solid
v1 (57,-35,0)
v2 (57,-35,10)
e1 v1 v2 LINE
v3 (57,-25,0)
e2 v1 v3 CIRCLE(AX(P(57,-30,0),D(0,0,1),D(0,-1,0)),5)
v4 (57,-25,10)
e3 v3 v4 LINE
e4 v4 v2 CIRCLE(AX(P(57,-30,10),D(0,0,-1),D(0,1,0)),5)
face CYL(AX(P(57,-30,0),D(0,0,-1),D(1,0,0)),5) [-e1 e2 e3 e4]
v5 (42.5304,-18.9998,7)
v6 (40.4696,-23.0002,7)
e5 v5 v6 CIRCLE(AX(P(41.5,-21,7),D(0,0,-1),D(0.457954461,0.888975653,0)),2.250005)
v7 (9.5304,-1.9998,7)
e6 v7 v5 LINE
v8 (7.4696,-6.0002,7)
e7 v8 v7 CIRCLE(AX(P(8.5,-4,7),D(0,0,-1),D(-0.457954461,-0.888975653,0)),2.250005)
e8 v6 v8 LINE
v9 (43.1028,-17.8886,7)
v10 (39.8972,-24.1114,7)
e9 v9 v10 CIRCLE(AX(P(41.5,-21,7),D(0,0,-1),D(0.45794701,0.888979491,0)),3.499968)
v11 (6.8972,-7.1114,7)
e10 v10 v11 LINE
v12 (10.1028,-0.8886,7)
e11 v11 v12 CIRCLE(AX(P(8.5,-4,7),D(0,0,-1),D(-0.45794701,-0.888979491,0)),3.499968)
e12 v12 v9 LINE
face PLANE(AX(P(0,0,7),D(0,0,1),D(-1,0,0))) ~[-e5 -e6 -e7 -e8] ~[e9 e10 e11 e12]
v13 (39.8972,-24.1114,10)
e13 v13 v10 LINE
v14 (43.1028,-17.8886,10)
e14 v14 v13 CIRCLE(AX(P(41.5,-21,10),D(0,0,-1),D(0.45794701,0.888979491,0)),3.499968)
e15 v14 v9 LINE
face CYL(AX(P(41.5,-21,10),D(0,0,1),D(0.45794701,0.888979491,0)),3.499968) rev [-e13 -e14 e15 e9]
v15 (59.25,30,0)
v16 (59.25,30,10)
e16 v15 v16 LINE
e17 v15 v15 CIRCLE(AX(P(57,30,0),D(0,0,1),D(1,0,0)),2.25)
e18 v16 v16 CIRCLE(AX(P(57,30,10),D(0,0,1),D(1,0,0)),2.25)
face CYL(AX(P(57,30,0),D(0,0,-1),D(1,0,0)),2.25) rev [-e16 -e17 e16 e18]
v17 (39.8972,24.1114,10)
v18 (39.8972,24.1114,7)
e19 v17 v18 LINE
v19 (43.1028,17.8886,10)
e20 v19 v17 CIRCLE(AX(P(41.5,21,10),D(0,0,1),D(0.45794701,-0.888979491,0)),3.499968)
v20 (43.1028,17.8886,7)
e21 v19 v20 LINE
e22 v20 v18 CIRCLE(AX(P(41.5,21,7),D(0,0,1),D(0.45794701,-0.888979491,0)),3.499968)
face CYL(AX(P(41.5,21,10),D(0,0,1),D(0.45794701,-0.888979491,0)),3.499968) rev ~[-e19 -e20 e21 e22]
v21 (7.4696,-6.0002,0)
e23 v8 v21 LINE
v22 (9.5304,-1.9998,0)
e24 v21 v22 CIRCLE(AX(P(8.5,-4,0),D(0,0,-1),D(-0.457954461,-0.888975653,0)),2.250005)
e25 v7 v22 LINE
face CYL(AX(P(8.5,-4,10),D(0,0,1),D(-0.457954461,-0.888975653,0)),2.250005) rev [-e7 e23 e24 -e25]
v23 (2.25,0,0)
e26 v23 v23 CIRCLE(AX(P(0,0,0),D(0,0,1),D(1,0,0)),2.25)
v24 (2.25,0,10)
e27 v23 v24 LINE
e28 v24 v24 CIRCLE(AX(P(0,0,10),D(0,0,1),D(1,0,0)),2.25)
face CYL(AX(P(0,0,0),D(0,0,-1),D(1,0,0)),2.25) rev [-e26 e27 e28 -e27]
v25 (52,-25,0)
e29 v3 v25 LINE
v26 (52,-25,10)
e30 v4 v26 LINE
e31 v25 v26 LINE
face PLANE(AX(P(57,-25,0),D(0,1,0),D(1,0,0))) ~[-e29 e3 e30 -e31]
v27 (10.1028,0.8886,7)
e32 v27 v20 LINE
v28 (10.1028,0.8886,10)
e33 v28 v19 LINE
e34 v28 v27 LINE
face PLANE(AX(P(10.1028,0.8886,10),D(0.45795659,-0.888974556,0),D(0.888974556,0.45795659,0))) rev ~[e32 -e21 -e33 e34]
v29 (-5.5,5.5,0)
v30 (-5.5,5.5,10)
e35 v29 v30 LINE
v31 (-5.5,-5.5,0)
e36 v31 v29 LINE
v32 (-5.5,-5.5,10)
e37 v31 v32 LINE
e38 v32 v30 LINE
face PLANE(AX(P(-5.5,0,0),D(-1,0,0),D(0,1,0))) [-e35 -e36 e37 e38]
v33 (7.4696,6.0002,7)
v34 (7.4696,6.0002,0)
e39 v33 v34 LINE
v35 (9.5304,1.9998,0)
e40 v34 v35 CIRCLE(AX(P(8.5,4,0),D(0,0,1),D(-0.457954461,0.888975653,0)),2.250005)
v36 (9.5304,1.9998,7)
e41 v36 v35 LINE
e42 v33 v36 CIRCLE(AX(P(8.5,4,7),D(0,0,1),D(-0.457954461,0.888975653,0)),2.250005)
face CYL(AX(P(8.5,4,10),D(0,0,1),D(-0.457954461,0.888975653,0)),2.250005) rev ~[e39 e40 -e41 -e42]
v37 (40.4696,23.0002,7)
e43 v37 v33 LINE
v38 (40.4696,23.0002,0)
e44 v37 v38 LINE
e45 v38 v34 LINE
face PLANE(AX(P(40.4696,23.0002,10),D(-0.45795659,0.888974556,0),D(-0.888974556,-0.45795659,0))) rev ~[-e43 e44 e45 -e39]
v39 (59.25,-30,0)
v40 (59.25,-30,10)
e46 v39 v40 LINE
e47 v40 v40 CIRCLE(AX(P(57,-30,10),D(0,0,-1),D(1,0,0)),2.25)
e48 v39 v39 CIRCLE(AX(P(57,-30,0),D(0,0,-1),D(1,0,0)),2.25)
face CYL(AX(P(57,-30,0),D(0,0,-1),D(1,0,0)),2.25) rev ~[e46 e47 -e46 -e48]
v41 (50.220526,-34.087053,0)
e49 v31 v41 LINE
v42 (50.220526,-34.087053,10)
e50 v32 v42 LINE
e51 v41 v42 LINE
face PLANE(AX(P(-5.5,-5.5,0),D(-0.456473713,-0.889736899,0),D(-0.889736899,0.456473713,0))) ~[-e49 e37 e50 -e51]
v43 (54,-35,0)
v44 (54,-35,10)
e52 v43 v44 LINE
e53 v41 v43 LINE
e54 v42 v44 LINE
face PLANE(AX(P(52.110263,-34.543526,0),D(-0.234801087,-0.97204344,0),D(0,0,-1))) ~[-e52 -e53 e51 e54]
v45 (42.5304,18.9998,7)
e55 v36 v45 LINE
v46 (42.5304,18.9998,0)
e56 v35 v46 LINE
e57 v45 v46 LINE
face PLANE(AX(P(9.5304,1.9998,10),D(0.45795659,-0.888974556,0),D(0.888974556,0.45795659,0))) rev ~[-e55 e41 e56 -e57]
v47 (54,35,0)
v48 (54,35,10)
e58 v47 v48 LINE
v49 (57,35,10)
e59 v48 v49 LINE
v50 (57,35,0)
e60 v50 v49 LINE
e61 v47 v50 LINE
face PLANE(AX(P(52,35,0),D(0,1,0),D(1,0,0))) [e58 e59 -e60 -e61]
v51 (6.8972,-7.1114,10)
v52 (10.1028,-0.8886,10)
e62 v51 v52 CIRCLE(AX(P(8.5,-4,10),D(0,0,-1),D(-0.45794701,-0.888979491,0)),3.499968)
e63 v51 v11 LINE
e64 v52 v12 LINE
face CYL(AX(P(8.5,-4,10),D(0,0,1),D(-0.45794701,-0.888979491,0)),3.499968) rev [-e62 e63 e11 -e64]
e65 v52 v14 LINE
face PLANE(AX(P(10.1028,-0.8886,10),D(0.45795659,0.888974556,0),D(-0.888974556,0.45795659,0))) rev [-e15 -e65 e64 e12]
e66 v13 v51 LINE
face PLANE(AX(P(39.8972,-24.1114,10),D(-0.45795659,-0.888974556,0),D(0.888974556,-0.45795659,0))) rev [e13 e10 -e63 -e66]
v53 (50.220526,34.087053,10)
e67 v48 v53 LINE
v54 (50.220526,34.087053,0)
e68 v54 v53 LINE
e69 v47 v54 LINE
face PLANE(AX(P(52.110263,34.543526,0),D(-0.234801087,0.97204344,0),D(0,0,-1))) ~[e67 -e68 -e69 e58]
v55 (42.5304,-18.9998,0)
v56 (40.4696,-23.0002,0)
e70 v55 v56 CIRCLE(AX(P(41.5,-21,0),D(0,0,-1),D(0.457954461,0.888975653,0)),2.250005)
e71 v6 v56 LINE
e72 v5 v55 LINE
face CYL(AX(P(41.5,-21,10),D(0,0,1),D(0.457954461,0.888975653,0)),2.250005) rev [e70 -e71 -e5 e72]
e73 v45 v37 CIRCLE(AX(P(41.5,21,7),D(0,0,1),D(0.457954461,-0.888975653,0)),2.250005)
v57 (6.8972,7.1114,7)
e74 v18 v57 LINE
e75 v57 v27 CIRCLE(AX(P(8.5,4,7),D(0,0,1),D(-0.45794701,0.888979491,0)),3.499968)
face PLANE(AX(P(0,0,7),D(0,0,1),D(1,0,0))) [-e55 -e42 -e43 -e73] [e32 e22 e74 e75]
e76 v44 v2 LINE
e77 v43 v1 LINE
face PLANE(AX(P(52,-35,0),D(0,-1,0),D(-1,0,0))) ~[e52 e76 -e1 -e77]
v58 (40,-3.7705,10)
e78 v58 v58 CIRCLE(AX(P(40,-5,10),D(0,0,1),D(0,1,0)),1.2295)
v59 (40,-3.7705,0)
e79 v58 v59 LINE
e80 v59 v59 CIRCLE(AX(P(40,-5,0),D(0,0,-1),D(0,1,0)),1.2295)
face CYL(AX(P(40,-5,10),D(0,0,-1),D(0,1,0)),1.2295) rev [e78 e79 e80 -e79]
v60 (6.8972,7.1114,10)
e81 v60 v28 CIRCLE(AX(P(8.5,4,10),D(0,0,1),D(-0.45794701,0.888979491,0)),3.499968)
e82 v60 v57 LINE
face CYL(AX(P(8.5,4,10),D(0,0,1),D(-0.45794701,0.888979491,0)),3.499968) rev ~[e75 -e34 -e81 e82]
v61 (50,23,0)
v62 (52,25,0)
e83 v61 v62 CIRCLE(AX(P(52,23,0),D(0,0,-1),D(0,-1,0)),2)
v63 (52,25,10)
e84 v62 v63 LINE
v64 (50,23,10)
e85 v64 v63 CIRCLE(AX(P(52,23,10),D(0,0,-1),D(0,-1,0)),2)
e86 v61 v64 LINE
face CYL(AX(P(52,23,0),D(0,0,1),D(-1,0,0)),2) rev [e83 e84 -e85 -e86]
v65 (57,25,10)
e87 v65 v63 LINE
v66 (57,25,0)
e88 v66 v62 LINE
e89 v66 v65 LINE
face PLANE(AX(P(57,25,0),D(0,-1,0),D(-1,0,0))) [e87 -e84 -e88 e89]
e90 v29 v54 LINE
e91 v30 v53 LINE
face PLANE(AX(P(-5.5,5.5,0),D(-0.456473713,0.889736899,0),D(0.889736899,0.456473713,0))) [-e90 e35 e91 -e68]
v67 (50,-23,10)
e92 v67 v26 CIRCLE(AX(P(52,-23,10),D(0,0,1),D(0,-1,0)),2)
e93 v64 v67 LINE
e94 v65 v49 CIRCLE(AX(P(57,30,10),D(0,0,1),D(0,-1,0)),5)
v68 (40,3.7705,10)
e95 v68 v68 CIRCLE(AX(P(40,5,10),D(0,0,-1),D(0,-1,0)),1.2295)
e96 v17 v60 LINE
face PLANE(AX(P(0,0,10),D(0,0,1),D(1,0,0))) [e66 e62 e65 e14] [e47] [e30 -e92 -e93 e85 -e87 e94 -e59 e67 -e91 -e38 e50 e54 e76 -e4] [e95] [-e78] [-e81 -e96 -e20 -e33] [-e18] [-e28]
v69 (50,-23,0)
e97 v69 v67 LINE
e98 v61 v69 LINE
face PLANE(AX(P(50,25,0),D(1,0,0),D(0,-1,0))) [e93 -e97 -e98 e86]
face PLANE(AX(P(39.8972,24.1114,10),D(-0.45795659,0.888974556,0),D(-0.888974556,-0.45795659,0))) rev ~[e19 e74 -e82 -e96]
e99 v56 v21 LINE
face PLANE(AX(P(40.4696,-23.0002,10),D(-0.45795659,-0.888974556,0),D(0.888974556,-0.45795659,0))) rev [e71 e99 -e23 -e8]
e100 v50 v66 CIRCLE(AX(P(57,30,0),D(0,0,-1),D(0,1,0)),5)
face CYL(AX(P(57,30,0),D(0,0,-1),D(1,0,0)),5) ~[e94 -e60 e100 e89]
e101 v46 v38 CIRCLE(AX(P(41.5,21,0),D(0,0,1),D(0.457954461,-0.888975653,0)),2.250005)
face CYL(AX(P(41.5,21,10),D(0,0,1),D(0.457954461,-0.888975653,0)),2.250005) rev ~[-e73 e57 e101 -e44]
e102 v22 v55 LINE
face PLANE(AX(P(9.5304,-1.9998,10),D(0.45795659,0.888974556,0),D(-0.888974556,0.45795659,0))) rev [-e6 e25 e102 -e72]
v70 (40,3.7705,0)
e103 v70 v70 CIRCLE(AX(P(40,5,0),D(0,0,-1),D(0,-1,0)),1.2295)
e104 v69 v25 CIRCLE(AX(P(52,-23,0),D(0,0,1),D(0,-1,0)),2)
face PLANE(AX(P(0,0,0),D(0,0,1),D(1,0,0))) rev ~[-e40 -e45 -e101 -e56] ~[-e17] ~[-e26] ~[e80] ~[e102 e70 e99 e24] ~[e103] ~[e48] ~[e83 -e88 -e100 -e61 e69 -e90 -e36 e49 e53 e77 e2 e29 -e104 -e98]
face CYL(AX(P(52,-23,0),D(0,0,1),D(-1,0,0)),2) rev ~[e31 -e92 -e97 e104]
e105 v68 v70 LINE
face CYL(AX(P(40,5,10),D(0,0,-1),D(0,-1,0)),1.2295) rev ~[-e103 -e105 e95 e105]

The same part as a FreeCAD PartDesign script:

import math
import FreeCAD as App
import Part
import Sketcher
Q = App.Units.Quantity


def edges_at(feature, points):
    """Names of the edges that pass closest to the given points."""
    edges = feature.Shape.Edges
    near = lambda p: min(range(len(edges)), key=lambda i: edges[i].distToShape(Part.Vertex(*p))[0])
    return sorted({f"Edge{near(p) + 1}" for p in points})

doc = App.newDocument("Part")
body = doc.addObject("PartDesign::Body", "Body")

sketch1 = body.newObject("Sketcher::SketchObject", "Sketch")
sketch1.AttachmentSupport = (doc.getObject("XY_Plane"), [""])
sketch1.MapMode = "FlatFace"
sketch1.addGeometry(Part.ArcOfCircle(Part.Circle(App.Vector(0, 0, 0), App.Vector(0, 0, 1), 2.2), math.radians(0), math.radians(180)), False)
sketch1.addGeometry(Part.LineSegment(App.Vector(2.2, 0, 0), App.Vector(50, 0, 0)), False)
sketch1.addGeometry(Part.LineSegment(App.Vector(50, 0, 0), App.Vector(50, 25, 0)), False)
sketch1.addGeometry(Part.LineSegment(App.Vector(50, 25, 0), App.Vector(57, 25, 0)), False)
sketch1.addGeometry(Part.ArcOfCircle(Part.Circle(App.Vector(57, 30, 0), App.Vector(0, 0, 1), 5), math.radians(-90), math.radians(90)), False)
sketch1.addGeometry(Part.LineSegment(App.Vector(57, 35, 0), App.Vector(52, 35, 0)), False)
sketch1.addGeometry(Part.LineSegment(App.Vector(52, 35, 0), App.Vector(-5.5, 5.5, 0)), False)
sketch1.addGeometry(Part.LineSegment(App.Vector(-5.5, 5.5, 0), App.Vector(-5.5, 0, 0)), False)
sketch1.addGeometry(Part.LineSegment(App.Vector(-5.5, 0, 0), App.Vector(-2.2, 0, 0)), False)
sketch1.addGeometry(Part.Circle(App.Vector(57, 30, 0), App.Vector(0, 0, 1), 2.2), False)
sketch1.addConstraint(Sketcher.Constraint("Coincident", 0, 1, 1, 1))
sketch1.addConstraint(Sketcher.Constraint("Coincident", 1, 2, 2, 1))
sketch1.addConstraint(Sketcher.Constraint("Coincident", 2, 2, 3, 1))
sketch1.addConstraint(Sketcher.Constraint("Tangent", 3, 2, 4, 1))
sketch1.addConstraint(Sketcher.Constraint("Tangent", 4, 2, 5, 1))
sketch1.addConstraint(Sketcher.Constraint("Coincident", 5, 2, 6, 1))
sketch1.addConstraint(Sketcher.Constraint("Coincident", 6, 2, 7, 1))
sketch1.addConstraint(Sketcher.Constraint("Coincident", 7, 2, 8, 1))
sketch1.addConstraint(Sketcher.Constraint("Coincident", 8, 2, 0, 2))
sketch1.addConstraint(Sketcher.Constraint("Horizontal", 1))
sketch1.addConstraint(Sketcher.Constraint("Vertical", 2))
sketch1.addConstraint(Sketcher.Constraint("Horizontal", 3))
sketch1.addConstraint(Sketcher.Constraint("Horizontal", 5))
sketch1.addConstraint(Sketcher.Constraint("Vertical", 7))
sketch1.addConstraint(Sketcher.Constraint("Horizontal", 8))
sketch1.addConstraint(Sketcher.Constraint("Coincident", 0, 3, -1, 1))
sketch1.addConstraint(Sketcher.Constraint("Coincident", 9, 3, 4, 3))
sketch1.addConstraint(Sketcher.Constraint("Equal", 0, 9))
sketch1.addConstraint(Sketcher.Constraint("PointOnObject", 0, 1, -1))
sketch1.addConstraint(Sketcher.Constraint("PointOnObject", 7, 2, -1))
sketch1.addConstraint(Sketcher.Constraint("Radius", 4, Q("5 mm")))
sketch1.addConstraint(Sketcher.Constraint("Diameter", 9, Q("4.5 mm")))
sketch1.addConstraint(Sketcher.Constraint("DistanceX", 5, 2, 5, 1, Q("5 mm")))
sketch1.addConstraint(Sketcher.Constraint("DistanceY", 2, 1, 2, 2, Q("25 mm")))
sketch1.addConstraint(Sketcher.Constraint("DistanceY", 7, 2, 7, 1, Q("5.5 mm")))
sketch1.addConstraint(Sketcher.Constraint("DistanceX", 6, 2, -1, 1, Q("5.5 mm")))
sketch1.addConstraint(Sketcher.Constraint("DistanceX", 6, 2, 1, 2, Q("55.5 mm")))
sketch1.addConstraint(Sketcher.Constraint("DistanceX", 3, 1, 3, 2, Q("7 mm")))
pad1 = body.newObject("PartDesign::Pad", "Pad")
pad1.Profile = sketch1
pad1.Length = 10
doc.recompute()

mirrored = body.newObject("PartDesign::Mirrored", "Mirrored")
mirrored.TransformMode = "Transform body"
mirrored.MirrorPlane = (doc.getObject("XZ_Plane"), [""])
body.Tip = mirrored
doc.recompute()

fillet = body.newObject("PartDesign::Fillet", "Fillet")
fillet.Base = (mirrored, edges_at(mirrored, [(50, 25, 5), (50, -25, 5)]))
fillet.Radius = 2

sketch2 = body.newObject("Sketcher::SketchObject", "Sketch001")
sketch2.AttachmentSupport = (doc.getObject("XY_Plane"), [""])
sketch2.MapMode = "FlatFace"
sketch2.AttachmentOffset = App.Placement(App.Vector(0, 0, 10), App.Rotation())
sketch2.addGeometry(Part.ArcOfCircle(Part.Circle(App.Vector(41.5, 21, 0), App.Vector(0, 0, 1), 3.5), math.radians(-63), math.radians(117)), False)
sketch2.addGeometry(Part.LineSegment(App.Vector(39.9, 24.1, 0), App.Vector(6.9, 7.1, 0)), False)
sketch2.addGeometry(Part.ArcOfCircle(Part.Circle(App.Vector(8.5, 4, 0), App.Vector(0, 0, 1), 3.5), math.radians(117), math.radians(297)), False)
sketch2.addGeometry(Part.LineSegment(App.Vector(10.1, 0.9, 0), App.Vector(43.1, 17.9, 0)), False)
sketch2.addGeometry(Part.LineSegment(App.Vector(7.5, 6, 0), App.Vector(40.5, 23, 0)), False)
sketch2.addGeometry(Part.ArcOfCircle(Part.Circle(App.Vector(41.5, 21, 0), App.Vector(0, 0, 1), 2.3), math.radians(-63), math.radians(117)), False)
sketch2.addGeometry(Part.LineSegment(App.Vector(42.5, 19, 0), App.Vector(9.5, 2, 0)), False)
sketch2.addGeometry(Part.ArcOfCircle(Part.Circle(App.Vector(8.5, 4, 0), App.Vector(0, 0, 1), 2.3), math.radians(117), math.radians(297)), False)
sketch2.addConstraint(Sketcher.Constraint("Tangent", 0, 2, 1, 1))
sketch2.addConstraint(Sketcher.Constraint("Tangent", 1, 2, 2, 1))
sketch2.addConstraint(Sketcher.Constraint("Tangent", 2, 2, 3, 1))
sketch2.addConstraint(Sketcher.Constraint("Tangent", 3, 2, 0, 1))
sketch2.addConstraint(Sketcher.Constraint("Tangent", 4, 2, 5, 2))
sketch2.addConstraint(Sketcher.Constraint("Tangent", 5, 1, 6, 1))
sketch2.addConstraint(Sketcher.Constraint("Tangent", 6, 2, 7, 2))
sketch2.addConstraint(Sketcher.Constraint("Tangent", 7, 1, 4, 1))
sketch2.addConstraint(Sketcher.Constraint("Coincident", 5, 3, 0, 3))
sketch2.addConstraint(Sketcher.Constraint("Coincident", 7, 3, 2, 3))
sketch2.addConstraint(Sketcher.Constraint("Equal", 0, 2))
sketch2.addConstraint(Sketcher.Constraint("Equal", 5, 7))
sketch2.addConstraint(Sketcher.Constraint("Radius", 0, Q("3.5 mm")))
sketch2.addConstraint(Sketcher.Constraint("Radius", 5, Q("2.25 mm")))
sketch2.addConstraint(Sketcher.Constraint("DistanceY", -1, 1, 0, 3, Q("21 mm")))
sketch2.addConstraint(Sketcher.Constraint("DistanceY", -1, 1, 2, 3, Q("4 mm")))
sketch2.addConstraint(Sketcher.Constraint("DistanceX", 2, 3, 0, 3, Q("33 mm")))
sketch2.addConstraint(Sketcher.Constraint("DistanceX", -1, 1, 0, 3, Q("41.5 mm")))
pocket1 = body.newObject("PartDesign::Pocket", "Pocket")
pocket1.Profile = sketch2
pocket1.Length = 3

sketch3 = body.newObject("Sketcher::SketchObject", "Sketch002")
sketch3.AttachmentSupport = (doc.getObject("XY_Plane"), [""])
sketch3.MapMode = "FlatFace"
sketch3.AttachmentOffset = App.Placement(App.Vector(0, 0, 10), App.Rotation())
sketch3.addGeometry(Part.LineSegment(App.Vector(9.5, 2, 0), App.Vector(42.5, 19, 0)), False)
sketch3.addGeometry(Part.ArcOfCircle(Part.Circle(App.Vector(41.5, 21, 0), App.Vector(0, 0, 1), 2.3), math.radians(-63), math.radians(117)), False)
sketch3.addGeometry(Part.LineSegment(App.Vector(40.5, 23, 0), App.Vector(7.5, 6, 0)), False)
sketch3.addGeometry(Part.ArcOfCircle(Part.Circle(App.Vector(8.5, 4, 0), App.Vector(0, 0, 1), 2.3), math.radians(117), math.radians(297)), False)
sketch3.addConstraint(Sketcher.Constraint("Tangent", 0, 2, 1, 1))
sketch3.addConstraint(Sketcher.Constraint("Tangent", 1, 2, 2, 1))
sketch3.addConstraint(Sketcher.Constraint("Tangent", 2, 2, 3, 1))
sketch3.addConstraint(Sketcher.Constraint("Tangent", 3, 2, 0, 1))
sketch3.addConstraint(Sketcher.Constraint("Equal", 1, 3))
sketch3.addConstraint(Sketcher.Constraint("Radius", 1, Q("2.25 mm")))
sketch3.addConstraint(Sketcher.Constraint("DistanceY", -1, 1, 1, 3, Q("21 mm")))
sketch3.addConstraint(Sketcher.Constraint("DistanceY", -1, 1, 3, 3, Q("4 mm")))
sketch3.addConstraint(Sketcher.Constraint("DistanceX", 3, 3, 1, 3, Q("33 mm")))
sketch3.addConstraint(Sketcher.Constraint("DistanceX", -1, 1, 1, 3, Q("41.5 mm")))
pocket2 = body.newObject("PartDesign::Pocket", "Pocket001")
pocket2.Profile = sketch3
pocket2.Length = 10
doc.recompute()

mirrored2 = body.newObject("PartDesign::Mirrored", "Mirrored001")
mirrored2.Originals = [pocket1, pad1, pocket2]
mirrored2.MirrorPlane = (doc.getObject("XZ_Plane"), [""])
body.Tip = mirrored2

sketch4 = body.newObject("Sketcher::SketchObject", "Sketch003")
sketch4.AttachmentSupport = (doc.getObject("XY_Plane"), [""])
sketch4.MapMode = "FlatFace"
sketch4.AttachmentOffset = App.Placement(App.Vector(0, 0, 10), App.Rotation())
sketch4.addGeometry(Part.Circle(App.Vector(40, 5, 0), App.Vector(0, 0, 1), 1.2), False)
sketch4.addConstraint(Sketcher.Constraint("Diameter", 0, Q("2.459 mm")))
sketch4.addConstraint(Sketcher.Constraint("DistanceX", -1, 1, 0, 3, Q("40 mm")))
sketch4.addConstraint(Sketcher.Constraint("DistanceY", -1, 1, 0, 3, Q("5 mm")))
doc.recompute()
hole = body.newObject("PartDesign::Hole", "Hole")
hole.Profile = sketch4
hole.ThreadType = "None"
hole.Diameter = 2.459
hole.DepthType = "ThroughAll"
doc.recompute()

mirrored3 = body.newObject("PartDesign::Mirrored", "Mirrored002")
mirrored3.Originals = [hole, pocket1, pocket2]
mirrored3.MirrorPlane = (doc.getObject("XZ_Plane"), [""])
body.Tip = mirrored3
doc.recompute()

chamfer = body.newObject("PartDesign::Chamfer", "Chamfer")
chamfer.Base = (mirrored3, edges_at(mirrored3, [(52, 35, 5)]))
chamfer.Size = 2
doc.recompute()

chamfer2 = body.newObject("PartDesign::Chamfer", "Chamfer001")
chamfer2.Base = (chamfer, edges_at(chamfer, [(52, -35, 5)]))
chamfer2.Size = 2

doc.recompute()
